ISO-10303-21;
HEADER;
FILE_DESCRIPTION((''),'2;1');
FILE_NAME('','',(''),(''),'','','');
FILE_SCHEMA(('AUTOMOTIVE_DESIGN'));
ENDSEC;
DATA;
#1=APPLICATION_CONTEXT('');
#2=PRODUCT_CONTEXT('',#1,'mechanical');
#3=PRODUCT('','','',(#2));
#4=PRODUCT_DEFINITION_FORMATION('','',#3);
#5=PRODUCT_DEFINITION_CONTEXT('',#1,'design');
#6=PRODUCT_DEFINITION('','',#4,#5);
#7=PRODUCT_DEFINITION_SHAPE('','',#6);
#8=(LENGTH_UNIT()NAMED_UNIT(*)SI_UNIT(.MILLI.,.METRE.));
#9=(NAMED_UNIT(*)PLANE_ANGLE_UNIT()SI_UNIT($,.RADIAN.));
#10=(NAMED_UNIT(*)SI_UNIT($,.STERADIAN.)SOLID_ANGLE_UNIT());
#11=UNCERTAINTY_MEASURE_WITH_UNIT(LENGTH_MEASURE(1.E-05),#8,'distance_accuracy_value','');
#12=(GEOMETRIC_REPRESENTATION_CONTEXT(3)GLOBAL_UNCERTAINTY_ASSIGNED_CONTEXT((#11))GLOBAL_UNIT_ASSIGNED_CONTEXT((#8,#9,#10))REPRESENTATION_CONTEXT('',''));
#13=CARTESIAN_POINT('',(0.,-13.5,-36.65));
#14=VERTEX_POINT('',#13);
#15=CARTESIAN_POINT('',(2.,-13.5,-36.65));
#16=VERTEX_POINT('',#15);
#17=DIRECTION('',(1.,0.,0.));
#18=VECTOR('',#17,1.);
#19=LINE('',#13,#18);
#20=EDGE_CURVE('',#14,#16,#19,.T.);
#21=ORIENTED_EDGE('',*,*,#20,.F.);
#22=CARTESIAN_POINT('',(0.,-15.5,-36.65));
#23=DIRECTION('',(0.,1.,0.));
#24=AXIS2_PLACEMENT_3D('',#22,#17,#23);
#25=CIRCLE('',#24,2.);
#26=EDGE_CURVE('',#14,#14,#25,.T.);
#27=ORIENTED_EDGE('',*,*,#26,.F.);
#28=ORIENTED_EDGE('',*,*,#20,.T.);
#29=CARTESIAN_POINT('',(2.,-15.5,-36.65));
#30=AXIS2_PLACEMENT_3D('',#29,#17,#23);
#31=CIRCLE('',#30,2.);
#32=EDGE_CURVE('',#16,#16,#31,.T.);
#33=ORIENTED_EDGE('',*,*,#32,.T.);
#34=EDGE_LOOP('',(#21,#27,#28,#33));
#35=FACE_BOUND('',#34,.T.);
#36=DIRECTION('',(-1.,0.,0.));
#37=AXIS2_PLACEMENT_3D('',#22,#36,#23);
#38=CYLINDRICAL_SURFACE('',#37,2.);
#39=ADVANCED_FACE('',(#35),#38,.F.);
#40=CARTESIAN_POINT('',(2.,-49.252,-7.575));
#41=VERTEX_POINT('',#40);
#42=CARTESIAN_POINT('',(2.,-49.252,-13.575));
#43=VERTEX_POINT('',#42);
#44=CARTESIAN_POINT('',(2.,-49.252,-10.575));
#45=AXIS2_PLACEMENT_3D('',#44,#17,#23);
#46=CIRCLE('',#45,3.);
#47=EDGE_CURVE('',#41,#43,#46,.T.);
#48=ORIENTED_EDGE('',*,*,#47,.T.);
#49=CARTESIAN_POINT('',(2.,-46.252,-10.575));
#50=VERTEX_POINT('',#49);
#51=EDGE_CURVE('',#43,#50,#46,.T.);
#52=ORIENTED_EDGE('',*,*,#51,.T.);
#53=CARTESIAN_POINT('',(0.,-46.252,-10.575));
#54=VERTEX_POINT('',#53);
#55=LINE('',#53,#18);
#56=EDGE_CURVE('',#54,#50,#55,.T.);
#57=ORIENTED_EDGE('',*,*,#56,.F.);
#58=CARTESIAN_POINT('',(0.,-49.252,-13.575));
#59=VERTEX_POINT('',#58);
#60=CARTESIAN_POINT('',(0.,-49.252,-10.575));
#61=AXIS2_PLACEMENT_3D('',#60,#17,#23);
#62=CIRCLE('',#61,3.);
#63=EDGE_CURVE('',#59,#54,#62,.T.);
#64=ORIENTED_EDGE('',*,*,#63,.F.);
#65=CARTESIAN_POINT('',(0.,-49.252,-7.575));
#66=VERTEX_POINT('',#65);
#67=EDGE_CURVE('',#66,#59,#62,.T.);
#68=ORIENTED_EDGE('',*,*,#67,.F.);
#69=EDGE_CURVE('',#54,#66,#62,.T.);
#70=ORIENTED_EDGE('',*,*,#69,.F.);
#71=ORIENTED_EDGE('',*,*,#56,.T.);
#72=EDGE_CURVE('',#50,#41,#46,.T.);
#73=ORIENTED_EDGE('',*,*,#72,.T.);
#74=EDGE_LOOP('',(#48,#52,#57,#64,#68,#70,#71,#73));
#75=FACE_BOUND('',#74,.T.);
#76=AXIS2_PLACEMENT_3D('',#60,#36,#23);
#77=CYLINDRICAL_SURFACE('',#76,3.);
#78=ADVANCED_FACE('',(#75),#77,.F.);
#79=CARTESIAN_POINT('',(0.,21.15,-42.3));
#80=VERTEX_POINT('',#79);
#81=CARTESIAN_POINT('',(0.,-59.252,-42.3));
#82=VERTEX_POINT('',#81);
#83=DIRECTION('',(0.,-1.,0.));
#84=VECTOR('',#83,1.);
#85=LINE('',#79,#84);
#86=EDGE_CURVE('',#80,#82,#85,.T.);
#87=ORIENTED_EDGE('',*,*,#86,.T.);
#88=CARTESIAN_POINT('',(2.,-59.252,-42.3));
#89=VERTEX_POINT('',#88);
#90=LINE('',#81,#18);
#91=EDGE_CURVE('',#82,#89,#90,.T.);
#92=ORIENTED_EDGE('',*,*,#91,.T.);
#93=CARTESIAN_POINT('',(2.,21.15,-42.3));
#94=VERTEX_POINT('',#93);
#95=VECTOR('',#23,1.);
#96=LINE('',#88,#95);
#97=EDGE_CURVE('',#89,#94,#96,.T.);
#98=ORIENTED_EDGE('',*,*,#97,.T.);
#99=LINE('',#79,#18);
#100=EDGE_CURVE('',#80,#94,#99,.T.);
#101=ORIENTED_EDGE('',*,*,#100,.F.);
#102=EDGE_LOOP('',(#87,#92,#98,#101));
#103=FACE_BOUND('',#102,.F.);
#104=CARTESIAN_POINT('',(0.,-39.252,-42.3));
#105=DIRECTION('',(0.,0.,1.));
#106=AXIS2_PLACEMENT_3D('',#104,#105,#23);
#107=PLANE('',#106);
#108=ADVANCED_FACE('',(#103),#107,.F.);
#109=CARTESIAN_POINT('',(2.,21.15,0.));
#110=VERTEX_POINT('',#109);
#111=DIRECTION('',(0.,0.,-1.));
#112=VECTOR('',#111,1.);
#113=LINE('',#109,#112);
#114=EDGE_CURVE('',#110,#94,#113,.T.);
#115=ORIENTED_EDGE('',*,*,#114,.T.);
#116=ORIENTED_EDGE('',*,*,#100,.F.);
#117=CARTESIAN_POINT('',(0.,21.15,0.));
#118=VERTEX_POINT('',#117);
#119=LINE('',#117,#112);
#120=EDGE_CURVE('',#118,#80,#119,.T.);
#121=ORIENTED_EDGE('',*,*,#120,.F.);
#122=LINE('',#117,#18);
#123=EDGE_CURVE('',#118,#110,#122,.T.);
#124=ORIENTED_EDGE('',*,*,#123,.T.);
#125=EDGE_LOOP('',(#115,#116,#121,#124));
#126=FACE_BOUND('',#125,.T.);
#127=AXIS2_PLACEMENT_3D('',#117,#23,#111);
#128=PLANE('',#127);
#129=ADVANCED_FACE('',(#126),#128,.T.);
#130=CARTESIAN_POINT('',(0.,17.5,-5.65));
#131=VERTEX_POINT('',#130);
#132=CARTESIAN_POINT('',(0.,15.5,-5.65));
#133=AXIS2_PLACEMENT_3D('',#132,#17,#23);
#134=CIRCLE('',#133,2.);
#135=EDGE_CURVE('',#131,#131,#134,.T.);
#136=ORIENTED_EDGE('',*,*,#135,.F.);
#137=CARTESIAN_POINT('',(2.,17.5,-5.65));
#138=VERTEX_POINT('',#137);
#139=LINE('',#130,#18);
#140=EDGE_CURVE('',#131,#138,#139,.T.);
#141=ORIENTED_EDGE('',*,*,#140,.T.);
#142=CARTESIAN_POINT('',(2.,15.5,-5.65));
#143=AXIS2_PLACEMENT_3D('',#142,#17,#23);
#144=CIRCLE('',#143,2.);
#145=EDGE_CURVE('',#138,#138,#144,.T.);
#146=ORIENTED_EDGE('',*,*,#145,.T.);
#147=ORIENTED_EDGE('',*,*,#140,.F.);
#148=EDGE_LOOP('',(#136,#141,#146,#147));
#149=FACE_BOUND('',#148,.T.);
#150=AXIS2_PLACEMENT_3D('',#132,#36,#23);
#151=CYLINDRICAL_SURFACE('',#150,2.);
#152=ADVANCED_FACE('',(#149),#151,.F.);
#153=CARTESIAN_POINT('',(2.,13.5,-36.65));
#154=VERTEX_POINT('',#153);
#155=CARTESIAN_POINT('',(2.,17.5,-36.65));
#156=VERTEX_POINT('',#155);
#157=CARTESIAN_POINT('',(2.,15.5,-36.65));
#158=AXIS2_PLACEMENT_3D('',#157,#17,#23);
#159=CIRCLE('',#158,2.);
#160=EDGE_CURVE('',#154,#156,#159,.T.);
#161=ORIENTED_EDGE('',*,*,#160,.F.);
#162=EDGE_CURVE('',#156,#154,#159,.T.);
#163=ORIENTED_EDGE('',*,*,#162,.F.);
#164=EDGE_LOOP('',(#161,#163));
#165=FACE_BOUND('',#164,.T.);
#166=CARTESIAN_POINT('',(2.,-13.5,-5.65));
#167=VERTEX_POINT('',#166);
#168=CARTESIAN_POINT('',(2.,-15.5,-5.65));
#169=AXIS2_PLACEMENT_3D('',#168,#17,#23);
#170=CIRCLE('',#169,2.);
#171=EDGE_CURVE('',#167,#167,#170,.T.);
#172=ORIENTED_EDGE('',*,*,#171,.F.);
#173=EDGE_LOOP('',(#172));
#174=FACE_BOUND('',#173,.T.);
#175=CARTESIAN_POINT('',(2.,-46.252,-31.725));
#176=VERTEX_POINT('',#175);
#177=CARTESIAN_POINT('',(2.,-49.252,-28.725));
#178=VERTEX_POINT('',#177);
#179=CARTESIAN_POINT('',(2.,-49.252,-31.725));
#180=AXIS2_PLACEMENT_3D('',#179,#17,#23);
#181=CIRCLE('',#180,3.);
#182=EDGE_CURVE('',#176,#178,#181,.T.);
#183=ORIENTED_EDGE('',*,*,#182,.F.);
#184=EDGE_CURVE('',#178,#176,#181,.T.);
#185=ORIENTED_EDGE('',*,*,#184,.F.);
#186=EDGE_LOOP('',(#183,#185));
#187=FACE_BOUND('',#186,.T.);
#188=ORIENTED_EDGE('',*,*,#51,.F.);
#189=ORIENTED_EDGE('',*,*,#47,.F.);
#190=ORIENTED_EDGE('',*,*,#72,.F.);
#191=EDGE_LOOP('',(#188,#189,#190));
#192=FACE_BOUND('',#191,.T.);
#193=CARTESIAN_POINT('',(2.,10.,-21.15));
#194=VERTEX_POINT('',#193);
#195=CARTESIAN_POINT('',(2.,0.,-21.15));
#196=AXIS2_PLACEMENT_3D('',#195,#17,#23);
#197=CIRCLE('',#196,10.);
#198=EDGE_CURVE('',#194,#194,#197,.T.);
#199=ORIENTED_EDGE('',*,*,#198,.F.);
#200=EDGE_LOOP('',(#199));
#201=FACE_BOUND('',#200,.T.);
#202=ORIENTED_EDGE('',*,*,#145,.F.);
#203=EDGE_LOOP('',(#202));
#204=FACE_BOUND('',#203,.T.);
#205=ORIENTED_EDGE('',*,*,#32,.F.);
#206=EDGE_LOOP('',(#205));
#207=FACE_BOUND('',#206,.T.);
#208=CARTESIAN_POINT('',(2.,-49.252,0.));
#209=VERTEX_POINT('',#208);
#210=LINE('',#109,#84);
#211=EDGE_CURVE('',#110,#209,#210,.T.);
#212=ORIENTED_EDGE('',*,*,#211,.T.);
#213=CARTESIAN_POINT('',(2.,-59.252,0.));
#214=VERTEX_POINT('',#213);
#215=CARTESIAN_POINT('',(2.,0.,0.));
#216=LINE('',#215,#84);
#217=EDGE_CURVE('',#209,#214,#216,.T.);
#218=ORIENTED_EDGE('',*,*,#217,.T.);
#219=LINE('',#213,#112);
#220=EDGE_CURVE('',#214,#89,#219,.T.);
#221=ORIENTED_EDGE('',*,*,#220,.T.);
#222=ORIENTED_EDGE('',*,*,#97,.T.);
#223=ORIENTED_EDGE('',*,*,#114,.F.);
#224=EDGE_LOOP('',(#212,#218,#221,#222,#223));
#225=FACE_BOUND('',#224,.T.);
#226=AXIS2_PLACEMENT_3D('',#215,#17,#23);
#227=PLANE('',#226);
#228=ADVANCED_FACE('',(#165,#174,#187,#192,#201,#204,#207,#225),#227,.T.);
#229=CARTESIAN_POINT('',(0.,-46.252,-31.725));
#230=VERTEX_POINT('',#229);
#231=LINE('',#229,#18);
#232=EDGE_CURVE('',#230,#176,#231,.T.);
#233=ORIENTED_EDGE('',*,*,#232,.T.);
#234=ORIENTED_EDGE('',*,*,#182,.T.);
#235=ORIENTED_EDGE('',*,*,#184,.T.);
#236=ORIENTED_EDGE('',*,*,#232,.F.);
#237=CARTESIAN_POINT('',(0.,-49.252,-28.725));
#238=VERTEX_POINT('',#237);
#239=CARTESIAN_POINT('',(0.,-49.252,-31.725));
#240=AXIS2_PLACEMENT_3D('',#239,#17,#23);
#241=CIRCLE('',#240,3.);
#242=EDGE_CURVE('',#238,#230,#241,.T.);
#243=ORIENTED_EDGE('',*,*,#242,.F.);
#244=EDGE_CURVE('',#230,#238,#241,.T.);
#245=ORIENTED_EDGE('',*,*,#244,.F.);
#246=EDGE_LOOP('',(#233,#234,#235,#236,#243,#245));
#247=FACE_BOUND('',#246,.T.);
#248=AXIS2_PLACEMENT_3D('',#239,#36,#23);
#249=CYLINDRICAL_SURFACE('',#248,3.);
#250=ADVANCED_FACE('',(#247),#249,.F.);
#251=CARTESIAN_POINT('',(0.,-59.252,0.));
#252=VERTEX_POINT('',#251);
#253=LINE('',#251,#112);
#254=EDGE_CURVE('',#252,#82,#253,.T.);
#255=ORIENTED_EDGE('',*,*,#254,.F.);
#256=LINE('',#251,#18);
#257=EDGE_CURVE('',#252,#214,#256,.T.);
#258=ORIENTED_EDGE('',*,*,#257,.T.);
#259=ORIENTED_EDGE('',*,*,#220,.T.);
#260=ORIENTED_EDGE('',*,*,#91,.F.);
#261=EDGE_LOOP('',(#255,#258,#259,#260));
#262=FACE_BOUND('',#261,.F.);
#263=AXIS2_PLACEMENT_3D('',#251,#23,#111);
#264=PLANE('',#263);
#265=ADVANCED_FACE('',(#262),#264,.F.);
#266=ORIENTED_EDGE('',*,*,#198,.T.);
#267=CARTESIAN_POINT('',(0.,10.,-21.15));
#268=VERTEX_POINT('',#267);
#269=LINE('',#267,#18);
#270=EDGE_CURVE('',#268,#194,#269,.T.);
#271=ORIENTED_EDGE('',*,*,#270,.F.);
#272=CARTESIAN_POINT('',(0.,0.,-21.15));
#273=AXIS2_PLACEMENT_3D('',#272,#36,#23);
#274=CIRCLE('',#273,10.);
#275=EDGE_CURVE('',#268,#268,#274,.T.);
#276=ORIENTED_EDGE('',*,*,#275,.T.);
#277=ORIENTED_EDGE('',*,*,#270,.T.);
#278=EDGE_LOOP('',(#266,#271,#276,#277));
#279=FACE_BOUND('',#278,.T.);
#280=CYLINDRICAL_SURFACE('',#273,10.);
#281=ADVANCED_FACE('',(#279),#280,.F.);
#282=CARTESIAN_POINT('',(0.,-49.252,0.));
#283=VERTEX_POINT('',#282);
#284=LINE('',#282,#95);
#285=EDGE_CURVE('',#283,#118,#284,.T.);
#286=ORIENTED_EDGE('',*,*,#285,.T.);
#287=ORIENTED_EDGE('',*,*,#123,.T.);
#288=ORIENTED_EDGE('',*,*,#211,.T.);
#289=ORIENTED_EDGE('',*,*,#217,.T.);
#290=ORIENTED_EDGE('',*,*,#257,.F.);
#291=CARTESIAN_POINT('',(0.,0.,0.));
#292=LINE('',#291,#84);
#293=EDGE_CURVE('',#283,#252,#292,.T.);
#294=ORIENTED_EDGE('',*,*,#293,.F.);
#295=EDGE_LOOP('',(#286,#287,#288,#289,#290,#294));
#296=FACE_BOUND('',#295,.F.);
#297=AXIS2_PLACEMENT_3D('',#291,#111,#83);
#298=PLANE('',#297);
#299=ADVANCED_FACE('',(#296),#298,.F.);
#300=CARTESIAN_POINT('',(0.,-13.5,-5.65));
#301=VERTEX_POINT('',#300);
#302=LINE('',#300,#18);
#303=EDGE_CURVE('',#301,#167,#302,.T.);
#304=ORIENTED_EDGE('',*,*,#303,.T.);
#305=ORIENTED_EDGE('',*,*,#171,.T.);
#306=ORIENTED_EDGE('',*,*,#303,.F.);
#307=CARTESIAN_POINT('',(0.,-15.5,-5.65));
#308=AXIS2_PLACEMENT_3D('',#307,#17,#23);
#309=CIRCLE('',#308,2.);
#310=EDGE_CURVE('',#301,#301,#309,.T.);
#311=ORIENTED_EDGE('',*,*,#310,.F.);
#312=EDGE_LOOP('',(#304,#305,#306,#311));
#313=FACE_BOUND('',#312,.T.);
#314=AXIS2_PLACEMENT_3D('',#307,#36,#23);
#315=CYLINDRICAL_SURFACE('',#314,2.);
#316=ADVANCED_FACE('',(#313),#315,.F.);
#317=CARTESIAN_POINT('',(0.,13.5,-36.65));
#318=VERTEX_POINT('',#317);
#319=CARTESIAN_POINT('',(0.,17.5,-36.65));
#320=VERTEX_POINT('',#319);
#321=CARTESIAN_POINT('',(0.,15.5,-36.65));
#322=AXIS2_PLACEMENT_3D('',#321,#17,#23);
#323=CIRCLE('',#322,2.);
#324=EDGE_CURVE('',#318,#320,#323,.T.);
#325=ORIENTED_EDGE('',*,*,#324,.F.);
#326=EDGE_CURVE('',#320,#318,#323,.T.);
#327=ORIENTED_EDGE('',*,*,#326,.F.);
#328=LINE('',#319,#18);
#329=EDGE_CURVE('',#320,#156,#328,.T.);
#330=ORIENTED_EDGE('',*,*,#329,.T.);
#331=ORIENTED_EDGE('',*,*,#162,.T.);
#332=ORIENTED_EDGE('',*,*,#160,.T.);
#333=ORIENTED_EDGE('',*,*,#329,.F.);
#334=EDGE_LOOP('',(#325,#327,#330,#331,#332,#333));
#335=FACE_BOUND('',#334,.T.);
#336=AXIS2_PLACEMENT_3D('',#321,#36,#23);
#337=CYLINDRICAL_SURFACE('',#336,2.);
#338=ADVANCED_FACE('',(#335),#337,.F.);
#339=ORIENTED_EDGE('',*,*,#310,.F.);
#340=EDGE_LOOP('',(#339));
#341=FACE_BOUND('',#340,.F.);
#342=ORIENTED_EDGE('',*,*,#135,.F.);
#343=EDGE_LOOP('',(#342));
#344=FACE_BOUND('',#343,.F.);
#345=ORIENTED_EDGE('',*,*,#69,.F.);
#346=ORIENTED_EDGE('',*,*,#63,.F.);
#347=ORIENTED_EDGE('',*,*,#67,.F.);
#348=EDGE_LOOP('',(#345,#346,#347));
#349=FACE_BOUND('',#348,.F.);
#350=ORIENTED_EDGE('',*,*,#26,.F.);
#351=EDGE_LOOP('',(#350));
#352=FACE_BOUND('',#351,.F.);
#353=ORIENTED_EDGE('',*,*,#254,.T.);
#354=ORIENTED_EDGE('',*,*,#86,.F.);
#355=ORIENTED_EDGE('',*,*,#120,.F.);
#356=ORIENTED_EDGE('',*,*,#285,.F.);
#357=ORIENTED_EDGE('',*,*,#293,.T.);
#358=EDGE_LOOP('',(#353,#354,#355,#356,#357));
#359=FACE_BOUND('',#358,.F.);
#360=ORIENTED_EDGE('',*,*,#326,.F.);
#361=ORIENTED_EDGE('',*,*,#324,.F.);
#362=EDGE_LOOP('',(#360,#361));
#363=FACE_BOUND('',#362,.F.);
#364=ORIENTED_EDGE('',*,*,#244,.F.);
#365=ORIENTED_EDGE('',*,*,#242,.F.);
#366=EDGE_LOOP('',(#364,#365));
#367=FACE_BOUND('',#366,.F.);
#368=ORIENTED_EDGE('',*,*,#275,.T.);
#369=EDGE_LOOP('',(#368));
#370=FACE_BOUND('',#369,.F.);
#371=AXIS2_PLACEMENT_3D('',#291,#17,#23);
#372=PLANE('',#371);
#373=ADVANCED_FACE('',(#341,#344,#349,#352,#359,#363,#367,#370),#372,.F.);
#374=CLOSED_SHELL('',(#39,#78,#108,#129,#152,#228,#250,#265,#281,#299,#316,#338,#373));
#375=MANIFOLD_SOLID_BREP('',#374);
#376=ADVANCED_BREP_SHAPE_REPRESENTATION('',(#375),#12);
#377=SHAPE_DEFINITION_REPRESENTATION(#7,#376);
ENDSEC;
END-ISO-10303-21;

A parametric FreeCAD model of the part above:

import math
import FreeCAD as App
import Part
import Sketcher


def add_polygon(sketch, points):
    """Adds a closed chain of lines whose ends are joined by coincident constraints."""
    first, n = sketch.GeometryCount, len(points)
    for a, b in zip(points, points[1:] + points[:1]):
        sketch.addGeometry(Part.LineSegment(App.Vector(*a, 0), App.Vector(*b, 0)), False)
    for i in range(n):
        sketch.addConstraint(Sketcher.Constraint("Coincident", first + i, 2, first + (i + 1) % n, 1))

doc = App.newDocument("Part")
body = doc.addObject("PartDesign::Body", "Body")

sketch1 = body.newObject("Sketcher::SketchObject", "Sketch")
sketch1.AttachmentSupport = (doc.getObject("YZ_Plane"), [""])
sketch1.MapMode = "FlatFace"
add_polygon(sketch1, [(21.1, -42.3), (21.1, 0), (-49.3, 0), (-59.3, 0), (-59.3, -42.3)])
sketch1.addGeometry(Part.Circle(App.Vector(0, -21.1, 0), App.Vector(0, 0, 1), 10), False)
sketch1.addGeometry(Part.Circle(App.Vector(-15.5, -36.6, 0), App.Vector(0, 0, 1), 2), False)
sketch1.addGeometry(Part.Circle(App.Vector(-15.5, -5.7, 0), App.Vector(0, 0, 1), 2), False)
sketch1.addGeometry(Part.Circle(App.Vector(15.5, -36.6, 0), App.Vector(0, 0, 1), 2), False)
sketch1.addGeometry(Part.Circle(App.Vector(15.5, -5.7, 0), App.Vector(0, 0, 1), 2), False)
sketch1.addGeometry(Part.Circle(App.Vector(-49.3, -31.7, 0), App.Vector(0, 0, 1), 3), False)
sketch1.addGeometry(Part.ArcOfCircle(Part.Circle(App.Vector(-49.3, -10.6, 0), App.Vector(0, 0, 1), 3), math.radians(90), math.radians(270)), False)
sketch1.addGeometry(Part.ArcOfCircle(Part.Circle(App.Vector(-49.3, -10.6, 0), App.Vector(0, 0, 1), 3), math.radians(-90), math.radians(90)), False)
sketch1.addConstraint([
    Sketcher.Constraint("Tangent", 11, 1, 12, 2),
    Sketcher.Constraint("Coincident", 12, 1, 11, 2),
    Sketcher.Constraint("Vertical", 0),
    Sketcher.Constraint("Horizontal", 1),
    Sketcher.Constraint("Horizontal", 2),
    Sketcher.Constraint("Vertical", 3),
    Sketcher.Constraint("Horizontal", 4),
    Sketcher.Constraint("Equal", 6, 7),
    Sketcher.Constraint("Equal", 7, 8),
    Sketcher.Constraint("Equal", 8, 9),
    Sketcher.Constraint("Equal", 10, 11),
    Sketcher.Constraint("Symmetric", 6, 3, 8, 3, -2),
    Sketcher.Constraint("Symmetric", 7, 3, 9, 3, -2),
    Sketcher.Constraint("PointOnObject", 5, 3, -2),
    Sketcher.Constraint("PointOnObject", 0, 2, -1),
    Sketcher.Constraint("Vertical", 6, 3, 7, 3),
    Sketcher.Constraint("Vertical", 10, 3, 11, 3),
    Sketcher.Constraint("Vertical", 12, 3, 1, 2),
    Sketcher.Constraint("Vertical", 1, 2, 11, 1),
    Sketcher.Constraint("Vertical", 11, 1, 12, 1),
    Sketcher.Constraint("Diameter", 5, 20.0),
    Sketcher.Constraint("Diameter", 6, 4.0),
    Sketcher.Constraint("Diameter", 10, 6.0),
    Sketcher.Constraint("DistanceX", 2, 2, 2, 1, 10.0),
    Sketcher.Constraint("DistanceY", 0, 1, 0, 2, 42.3),
    Sketcher.Constraint("DistanceY", 6, 3, 7, 3, 31.0),
    Sketcher.Constraint("DistanceX", 6, 3, 8, 3, 31.0),
    Sketcher.Constraint("DistanceY", 6, 3, 5, 3, 15.5),
    Sketcher.Constraint("DistanceY", 5, 3, -1, 1, 21.15),
    Sketcher.Constraint("DistanceX", -1, 1, 0, 2, 21.15),
    Sketcher.Constraint("DistanceY", 10, 3, 11, 3, 21.15),
    Sketcher.Constraint("DistanceY", 11, 3, -1, 1, 10.575),
    Sketcher.Constraint("DistanceX", 2, 2, -1, 1, 59.252),
])
pad1 = body.newObject("PartDesign::Pad", "Pad")
pad1.Profile = sketch1
pad1.Length = 2

doc.recompute()
